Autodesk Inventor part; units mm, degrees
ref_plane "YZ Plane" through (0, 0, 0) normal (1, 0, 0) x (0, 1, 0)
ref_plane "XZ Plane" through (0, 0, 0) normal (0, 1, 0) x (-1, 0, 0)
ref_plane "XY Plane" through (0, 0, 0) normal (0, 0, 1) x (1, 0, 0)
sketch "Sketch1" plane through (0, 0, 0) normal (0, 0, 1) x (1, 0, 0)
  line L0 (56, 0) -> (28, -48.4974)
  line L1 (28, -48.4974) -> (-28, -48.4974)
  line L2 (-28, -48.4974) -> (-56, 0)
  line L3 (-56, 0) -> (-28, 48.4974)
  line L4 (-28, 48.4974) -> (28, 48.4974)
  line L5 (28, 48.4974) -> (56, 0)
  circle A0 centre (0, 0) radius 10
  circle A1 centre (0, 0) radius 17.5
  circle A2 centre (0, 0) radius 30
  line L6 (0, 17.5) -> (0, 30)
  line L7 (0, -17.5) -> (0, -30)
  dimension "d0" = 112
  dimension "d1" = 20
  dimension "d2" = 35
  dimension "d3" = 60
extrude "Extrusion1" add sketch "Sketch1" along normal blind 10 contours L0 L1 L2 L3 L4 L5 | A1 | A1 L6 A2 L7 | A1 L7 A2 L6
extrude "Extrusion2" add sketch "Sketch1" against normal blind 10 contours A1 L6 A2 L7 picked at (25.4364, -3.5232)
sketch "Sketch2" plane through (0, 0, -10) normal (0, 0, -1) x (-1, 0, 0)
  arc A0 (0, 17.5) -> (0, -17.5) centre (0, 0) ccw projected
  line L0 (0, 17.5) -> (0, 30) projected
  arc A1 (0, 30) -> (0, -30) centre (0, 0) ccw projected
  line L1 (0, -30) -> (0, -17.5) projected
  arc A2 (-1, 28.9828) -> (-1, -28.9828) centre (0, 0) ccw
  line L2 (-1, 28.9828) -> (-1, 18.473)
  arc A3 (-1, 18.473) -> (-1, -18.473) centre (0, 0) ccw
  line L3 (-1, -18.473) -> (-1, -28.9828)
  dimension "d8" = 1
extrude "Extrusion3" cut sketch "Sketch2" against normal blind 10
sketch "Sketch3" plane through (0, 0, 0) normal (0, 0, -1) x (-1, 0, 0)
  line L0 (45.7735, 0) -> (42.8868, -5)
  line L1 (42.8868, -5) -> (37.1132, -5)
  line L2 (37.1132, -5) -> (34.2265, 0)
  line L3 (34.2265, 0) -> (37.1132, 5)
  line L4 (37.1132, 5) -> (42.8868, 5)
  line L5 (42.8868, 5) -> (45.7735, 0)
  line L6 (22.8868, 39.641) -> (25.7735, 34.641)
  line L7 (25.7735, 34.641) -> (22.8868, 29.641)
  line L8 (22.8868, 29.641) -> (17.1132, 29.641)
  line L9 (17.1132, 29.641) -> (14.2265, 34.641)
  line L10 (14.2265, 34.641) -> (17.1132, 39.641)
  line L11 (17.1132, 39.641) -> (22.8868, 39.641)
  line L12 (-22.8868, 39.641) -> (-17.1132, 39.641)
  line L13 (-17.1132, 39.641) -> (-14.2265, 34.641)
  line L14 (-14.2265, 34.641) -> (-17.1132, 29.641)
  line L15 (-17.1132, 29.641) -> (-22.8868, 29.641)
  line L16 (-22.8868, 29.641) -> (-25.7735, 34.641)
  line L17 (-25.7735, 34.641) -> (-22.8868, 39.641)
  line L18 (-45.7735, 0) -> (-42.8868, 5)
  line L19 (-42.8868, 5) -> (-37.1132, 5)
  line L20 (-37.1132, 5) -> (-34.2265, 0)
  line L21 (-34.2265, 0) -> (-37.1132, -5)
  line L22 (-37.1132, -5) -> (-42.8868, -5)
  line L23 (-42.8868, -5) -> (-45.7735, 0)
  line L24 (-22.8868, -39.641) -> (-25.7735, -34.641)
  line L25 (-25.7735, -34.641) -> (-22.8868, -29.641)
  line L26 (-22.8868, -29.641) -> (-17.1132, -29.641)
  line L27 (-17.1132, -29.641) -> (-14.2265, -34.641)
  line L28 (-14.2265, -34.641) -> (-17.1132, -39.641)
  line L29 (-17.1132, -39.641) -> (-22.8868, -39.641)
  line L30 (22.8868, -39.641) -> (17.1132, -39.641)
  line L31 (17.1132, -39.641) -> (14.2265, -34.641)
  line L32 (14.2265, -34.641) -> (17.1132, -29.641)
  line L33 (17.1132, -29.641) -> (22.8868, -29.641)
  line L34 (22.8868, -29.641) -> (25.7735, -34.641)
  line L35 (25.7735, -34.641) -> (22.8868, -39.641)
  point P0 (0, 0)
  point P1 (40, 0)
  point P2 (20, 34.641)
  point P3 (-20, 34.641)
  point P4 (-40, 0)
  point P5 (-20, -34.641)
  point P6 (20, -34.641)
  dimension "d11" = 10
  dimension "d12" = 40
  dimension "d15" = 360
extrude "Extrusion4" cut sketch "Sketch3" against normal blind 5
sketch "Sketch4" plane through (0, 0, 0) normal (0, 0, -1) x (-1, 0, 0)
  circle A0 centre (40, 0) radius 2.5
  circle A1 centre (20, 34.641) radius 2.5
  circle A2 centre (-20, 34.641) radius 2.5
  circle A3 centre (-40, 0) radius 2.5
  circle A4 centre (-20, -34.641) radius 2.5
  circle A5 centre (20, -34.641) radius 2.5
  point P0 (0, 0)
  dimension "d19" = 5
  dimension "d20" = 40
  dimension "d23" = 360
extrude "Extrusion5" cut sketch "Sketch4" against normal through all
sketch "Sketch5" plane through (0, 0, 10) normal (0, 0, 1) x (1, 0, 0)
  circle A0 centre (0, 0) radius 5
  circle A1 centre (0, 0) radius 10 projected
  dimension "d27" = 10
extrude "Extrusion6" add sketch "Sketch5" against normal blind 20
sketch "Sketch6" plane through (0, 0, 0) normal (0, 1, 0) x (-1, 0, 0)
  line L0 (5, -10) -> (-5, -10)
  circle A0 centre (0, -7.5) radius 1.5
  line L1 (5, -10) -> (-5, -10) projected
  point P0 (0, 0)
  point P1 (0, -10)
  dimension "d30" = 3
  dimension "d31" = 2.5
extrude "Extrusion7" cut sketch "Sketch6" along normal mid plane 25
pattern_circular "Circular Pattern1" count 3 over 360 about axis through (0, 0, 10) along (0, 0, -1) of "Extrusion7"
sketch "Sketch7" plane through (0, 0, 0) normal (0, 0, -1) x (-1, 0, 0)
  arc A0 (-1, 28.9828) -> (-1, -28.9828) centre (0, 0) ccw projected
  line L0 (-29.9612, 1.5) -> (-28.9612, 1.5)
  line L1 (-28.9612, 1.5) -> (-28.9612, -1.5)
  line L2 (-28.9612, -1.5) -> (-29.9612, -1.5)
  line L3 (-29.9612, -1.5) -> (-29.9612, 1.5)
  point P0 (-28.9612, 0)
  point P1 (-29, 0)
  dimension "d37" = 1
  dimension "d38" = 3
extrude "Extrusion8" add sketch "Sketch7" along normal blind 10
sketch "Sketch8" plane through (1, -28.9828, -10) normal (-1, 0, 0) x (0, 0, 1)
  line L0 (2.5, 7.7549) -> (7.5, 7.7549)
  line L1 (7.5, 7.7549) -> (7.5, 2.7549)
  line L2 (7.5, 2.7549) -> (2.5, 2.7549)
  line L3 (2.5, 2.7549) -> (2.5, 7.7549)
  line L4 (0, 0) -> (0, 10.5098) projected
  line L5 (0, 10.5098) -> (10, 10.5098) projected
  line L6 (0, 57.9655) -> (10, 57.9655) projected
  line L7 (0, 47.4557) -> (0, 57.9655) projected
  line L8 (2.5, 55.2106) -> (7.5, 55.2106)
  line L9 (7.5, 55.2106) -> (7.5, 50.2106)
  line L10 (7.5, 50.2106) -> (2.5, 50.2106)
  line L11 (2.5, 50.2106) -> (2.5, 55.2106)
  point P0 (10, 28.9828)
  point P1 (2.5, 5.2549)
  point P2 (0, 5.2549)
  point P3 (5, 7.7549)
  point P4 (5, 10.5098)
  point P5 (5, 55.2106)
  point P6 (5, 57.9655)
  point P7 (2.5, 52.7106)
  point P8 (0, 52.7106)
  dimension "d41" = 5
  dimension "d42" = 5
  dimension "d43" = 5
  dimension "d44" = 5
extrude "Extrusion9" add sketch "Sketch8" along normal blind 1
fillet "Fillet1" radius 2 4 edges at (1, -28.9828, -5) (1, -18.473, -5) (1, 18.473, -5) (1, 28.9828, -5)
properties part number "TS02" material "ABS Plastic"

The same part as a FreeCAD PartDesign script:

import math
import FreeCAD as App
import Part
import Sketcher

V = App.Vector
Q = App.Units.Quantity


def edges_at(feature, points):
    """Names of the edges that pass closest to the given points."""
    edges = feature.Shape.Edges
    near = lambda p: min(range(len(edges)), key=lambda i: edges[i].distToShape(Part.Vertex(*p))[0])
    return sorted({f"Edge{near(p) + 1}" for p in points})


def add_polygon(sketch, points):
    """Adds a closed chain of lines whose ends are joined by coincident constraints."""
    first, n = sketch.GeometryCount, len(points)
    for a, b in zip(points, points[1:] + points[:1]):
        sketch.addGeometry(Part.LineSegment(App.Vector(*a, 0), App.Vector(*b, 0)), False)
    for i in range(n):
        sketch.addConstraint(Sketcher.Constraint("Coincident", first + i, 2, first + (i + 1) % n, 1))

doc = App.newDocument("Part")
body = doc.addObject("PartDesign::Body", "Body")

# Sketch on XY plane
sketch1 = body.newObject("Sketcher::SketchObject", "Sketch")
sketch1.AttachmentSupport = (doc.getObject("XY_Plane"), [""])
sketch1.MapMode = "FlatFace"
add_polygon(sketch1, [(28, -48), (56, 0), (28, 48), (-28, 48), (-56, 0), (-28, -48)])  # lines 0-5
sketch1.addGeometry(Part.Circle(V(0, 0, 0), V(0, 0, 1), 10), False)  # 6
sketch1.addConstraint([
    Sketcher.Constraint("Horizontal", 2),
    Sketcher.Constraint("Horizontal", 5),
    Sketcher.Constraint("Coincident", 6, 3, -1, 1),
    Sketcher.Constraint("Symmetric", 0, 2, 3, 2, -1, 1),
    Sketcher.Constraint("Symmetric", 1, 2, 4, 2, -1, 1),
    Sketcher.Constraint("PointOnObject", 0, 2, -1),
    Sketcher.Constraint("Parallel", 0, 3),
    Sketcher.Constraint("Vertical", 2, 2, 4, 2),
    Sketcher.Constraint("Diameter", 6, 20.0),
    Sketcher.Constraint("Angle", 0, Q("60 deg")),
    Sketcher.Constraint("DistanceX", 3, 2, 0, 2, 112.0),
    Sketcher.Constraint("DistanceX", 2, 2, 2, 1, 56.0),
])
pad1 = body.newObject("PartDesign::Pad", "Pad")
pad1.Profile = sketch1
pad1.Length = 10

# Sketch on XY plane
sketch2 = body.newObject("Sketcher::SketchObject", "Sketch001")
sketch2.AttachmentSupport = (doc.getObject("XY_Plane"), [""])
sketch2.MapMode = "FlatFace"
sketch2.addGeometry([
    Part.ArcOfCircle(Part.Circle(V(0, 0, 0), V(0, 0, 1), 18), math.radians(-90), math.radians(90)),
    Part.LineSegment(V(0, -18, 0), V(0, -30, 0)),
    Part.ArcOfCircle(Part.Circle(V(0, 0, 0), V(0, 0, 1), 30), math.radians(-90), math.radians(90)),
    Part.LineSegment(V(0, 30, 0), V(0, 18, 0)),
], False)
sketch2.addConstraint([
    Sketcher.Constraint("Coincident", 0, 1, 1, 1),
    Sketcher.Constraint("Coincident", 1, 2, 2, 1),
    Sketcher.Constraint("Coincident", 2, 2, 3, 1),
    Sketcher.Constraint("Coincident", 3, 2, 0, 2),
    Sketcher.Constraint("Vertical", 1),
    Sketcher.Constraint("Vertical", 3),
    Sketcher.Constraint("Coincident", 0, 3, -1, 1),
    Sketcher.Constraint("Coincident", 2, 3, -1, 1),
    Sketcher.Constraint("PointOnObject", 0, 1, -2),
    Sketcher.Constraint("PointOnObject", 2, 2, -2),
    Sketcher.Constraint("Radius", 2, 30.0),
    Sketcher.Constraint("Radius", 0, 17.5),
])
pad2 = body.newObject("PartDesign::Pad", "Pad001")
pad2.Profile = sketch2
pad2.Length = 10
pad2.Reversed = True

# Sketch on XY plane
sketch3 = body.newObject("Sketcher::SketchObject", "Sketch002")
sketch3.AttachmentSupport = (doc.getObject("XY_Plane"), [""])
sketch3.MapMode = "FlatFace"
sketch3.AttachmentOffset = App.Placement(V(0, 0, -10), App.Rotation())
sketch3.addGeometry([
    Part.ArcOfCircle(Part.Circle(V(0, 0, 0), V(0, 0, 1), 18), math.radians(-90), math.radians(90)),  # 0
    Part.LineSegment(V(0, 18, 0), V(0, 30, 0)),  # 1
    Part.ArcOfCircle(Part.Circle(V(0, 0, 0), V(0, 0, 1), 30), math.radians(-90), math.radians(90)),  # 2
    Part.LineSegment(V(0, -30, 0), V(0, -18, 0)),  # 3
    Part.ArcOfCircle(Part.Circle(V(0, 0, 0), V(0, 0, 1), 29), math.radians(-88), math.radians(88)),  # 4
    Part.LineSegment(V(1, 29, 0), V(1, 18, 0)),  # 5
    Part.ArcOfCircle(Part.Circle(V(0, 0, 0), V(0, 0, 1), 19), math.radians(-87), math.radians(87)),  # 6
    Part.LineSegment(V(1, -18, 0), V(1, -29, 0)),  # 7
], False)
sketch3.addConstraint([
    Sketcher.Constraint("Coincident", 0, 2, 1, 1),
    Sketcher.Constraint("Coincident", 1, 2, 2, 2),
    Sketcher.Constraint("Coincident", 2, 1, 3, 1),
    Sketcher.Constraint("Coincident", 3, 2, 0, 1),
    Sketcher.Constraint("Coincident", 4, 2, 5, 1),
    Sketcher.Constraint("Coincident", 5, 2, 6, 2),
    Sketcher.Constraint("Coincident", 6, 1, 7, 1),
    Sketcher.Constraint("Coincident", 7, 2, 4, 1),
    Sketcher.Constraint("Vertical", 1),
    Sketcher.Constraint("Vertical", 3),
    Sketcher.Constraint("Vertical", 5),
    Sketcher.Constraint("Vertical", 7),
    Sketcher.Constraint("Coincident", 0, 3, -1, 1),
    Sketcher.Constraint("Coincident", 2, 3, -1, 1),
    Sketcher.Constraint("Coincident", 4, 3, -1, 1),
    Sketcher.Constraint("Coincident", 6, 3, -1, 1),
    Sketcher.Constraint("PointOnObject", 0, 2, -2),
    Sketcher.Constraint("PointOnObject", 2, 1, -2),
    Sketcher.Constraint("Vertical", 5, 2, 6, 1),
    Sketcher.Constraint("DistanceX", -1, 1, 4, 2, 1.0),
    Sketcher.Constraint("Radius", 2, 30.0),
    Sketcher.Constraint("Radius", 4, 29.0),
    Sketcher.Constraint("Radius", 0, 17.5),
    Sketcher.Constraint("Radius", 6, 18.5),
])
pocket1 = body.newObject("PartDesign::Pocket", "Pocket")
pocket1.Profile = sketch3
pocket1.Length = 10
pocket1.Reversed = True

# Sketch on XY plane
sketch4 = body.newObject("Sketcher::SketchObject", "Sketch003")
sketch4.AttachmentSupport = (doc.getObject("XY_Plane"), [""])
sketch4.MapMode = "FlatFace"
add_polygon(sketch4, [(-43, -5), (-46, 0), (-43, 5), (-37, 5), (-34, 0), (-37, -5)])  # lines 0-5
add_polygon(sketch4, [(-26, 35), (-23, 40), (-17, 40), (-14, 35), (-17, 30), (-23, 30)])  # lines 6-11
add_polygon(sketch4, [(17, 40), (23, 40), (26, 35), (23, 30), (17, 30), (14, 35)])  # lines 12-17
add_polygon(sketch4, [(43, 5), (46, 0), (43, -5), (37, -5), (34, 0), (37, 5)])  # lines 18-23
add_polygon(sketch4, [(26, -35), (23, -40), (17, -40), (14, -35), (17, -30), (23, -30)])  # lines 24-29
add_polygon(sketch4, [(-17, -40), (-23, -40), (-26, -35), (-23, -30), (-17, -30), (-14, -35)])  # lines 30-35
sketch4.addConstraint([
    Sketcher.Constraint("Horizontal", 2),
    Sketcher.Constraint("Horizontal", 5),
    Sketcher.Constraint("Horizontal", 7),
    Sketcher.Constraint("Horizontal", 10),
    Sketcher.Constraint("Horizontal", 12),
    Sketcher.Constraint("Horizontal", 15),
    Sketcher.Constraint("Horizontal", 20),
    Sketcher.Constraint("Horizontal", 23),
    Sketcher.Constraint("Horizontal", 25),
    Sketcher.Constraint("Horizontal", 28),
    Sketcher.Constraint("Horizontal", 30),
    Sketcher.Constraint("Horizontal", 33),
    Sketcher.Constraint("Symmetric", 0, 2, 18, 2, -1, 1),
    Sketcher.Constraint("Symmetric", 1, 2, 19, 2, -1, 1),
    Sketcher.Constraint("Symmetric", 3, 2, 21, 2, -1, 1),
    Sketcher.Constraint("Symmetric", 4, 2, 22, 2, -1, 1),
    Sketcher.Constraint("Symmetric", 6, 2, 24, 2, -1, 1),
    Sketcher.Constraint("Symmetric", 8, 2, 26, 2, -1, 1),
    Sketcher.Constraint("Symmetric", 9, 2, 27, 2, -1, 1),
    Sketcher.Constraint("Symmetric", 11, 2, 29, 2, -1, 1),
    Sketcher.Constraint("Symmetric", 12, 2, 30, 2, -1, 1),
    Sketcher.Constraint("Symmetric", 13, 2, 31, 2, -1, 1),
    Sketcher.Constraint("Symmetric", 14, 2, 32, 2, -1, 1),
    Sketcher.Constraint("Symmetric", 16, 2, 34, 2, -1, 1),
    Sketcher.Constraint("Symmetric", 6, 2, 12, 2, -2),
    Sketcher.Constraint("Symmetric", 11, 2, 13, 2, -2),
    Sketcher.Constraint("Symmetric", 10, 2, 14, 2, -2),
    Sketcher.Constraint("Symmetric", 8, 2, 16, 2, -2),
    Sketcher.Constraint("Symmetric", 5, 2, 19, 2, -2),
    Sketcher.Constraint("PointOnObject", 0, 2, -1),
    Sketcher.Constraint("PointOnObject", 3, 2, -1),
    Sketcher.Constraint("Parallel", 0, 3),
    Sketcher.Constraint("Parallel", 1, 4),
    Sketcher.Constraint("Parallel", 4, 6),
    Sketcher.Constraint("Parallel", 3, 8),
    Sketcher.Constraint("Parallel", 6, 9),
    Sketcher.Constraint("Parallel", 8, 11),
    Sketcher.Constraint("Parallel", 13, 16),
    Sketcher.Constraint("Parallel", 14, 17),
    Sketcher.Constraint("Parallel", 16, 18),
    Sketcher.Constraint("Parallel", 18, 21),
    Sketcher.Constraint("Parallel", 21, 26),
    Sketcher.Constraint("Parallel", 26, 29),
    Sketcher.Constraint("Parallel", 31, 34),
    Sketcher.Constraint("Parallel", 32, 35),
    Sketcher.Constraint("Horizontal", 8, 2, 11, 2),
    Sketcher.Constraint("Vertical", 7, 2, 9, 2),
    Sketcher.Constraint("Equal", 5, 7),
    Sketcher.Constraint("Equal", 4, 6),
    Sketcher.Constraint("DistanceY", 4, 2, 2, 2, 10.0),
    Sketcher.Constraint("DistanceX", 7, 2, 12, 2, 40.0),
    Sketcher.Constraint("Angle", 0, Q("119.9996 deg")),
    Sketcher.Constraint("DistanceX", 1, 2, 6, 2, 20.0),
    Sketcher.Constraint("DistanceX", 2, 1, 2, 2, 5.7736),
    Sketcher.Constraint("DistanceY", -1, 1, 6, 2, 39.641),
])
pocket2 = body.newObject("PartDesign::Pocket", "Pocket001")
pocket2.Profile = sketch4
pocket2.Length = 5
pocket2.Reversed = True

# Sketch on XY plane
sketch5 = body.newObject("Sketcher::SketchObject", "Sketch004")
sketch5.AttachmentSupport = (doc.getObject("XY_Plane"), [""])
sketch5.MapMode = "FlatFace"
sketch5.addGeometry([
    Part.Circle(V(-40, 0, 0), V(0, 0, 1), 2.5),  # 0
    Part.Circle(V(-20, 34.6, 0), V(0, 0, 1), 2.5),  # 1
    Part.Circle(V(20, 34.6, 0), V(0, 0, 1), 2.5),  # 2
    Part.Circle(V(40, 0, 0), V(0, 0, 1), 2.5),  # 3
    Part.Circle(V(20, -34.6, 0), V(0, 0, 1), 2.5),  # 4
    Part.Circle(V(-20, -34.6, 0), V(0, 0, 1), 2.5),  # 5
], False)
sketch5.addConstraint([
    Sketcher.Constraint("Equal", 0, 1),
    Sketcher.Constraint("Equal", 1, 2),
    Sketcher.Constraint("Equal", 2, 3),
    Sketcher.Constraint("Equal", 3, 4),
    Sketcher.Constraint("Equal", 4, 5),
    Sketcher.Constraint("Symmetric", 0, 3, 3, 3, -1, 1),
    Sketcher.Constraint("Symmetric", 1, 3, 4, 3, -1, 1),
    Sketcher.Constraint("Symmetric", 2, 3, 5, 3, -1, 1),
    Sketcher.Constraint("Symmetric", 1, 3, 2, 3, -2),
    Sketcher.Constraint("PointOnObject", 0, 3, -1),
    Sketcher.Constraint("Diameter", 0, 5.0),
    Sketcher.Constraint("DistanceX", 0, 3, -1, 1, 40.0),
    Sketcher.Constraint("DistanceX", 1, 3, 2, 3, 40.0),
    Sketcher.Constraint("DistanceY", -1, 1, 1, 3, 34.641),
])
pocket3 = body.newObject("PartDesign::Pocket", "Pocket002")
pocket3.Profile = sketch5
pocket3.Type = "ThroughAll"
pocket3.Reversed = True

# Sketch on XY plane
sketch6 = body.newObject("Sketcher::SketchObject", "Sketch005")
sketch6.AttachmentSupport = (doc.getObject("XY_Plane"), [""])
sketch6.MapMode = "FlatFace"
sketch6.AttachmentOffset = App.Placement(V(0, 0, 10), App.Rotation())
sketch6.addGeometry([
    Part.Circle(V(0, 0, 0), V(0, 0, 1), 10),
    Part.Circle(V(0, 0, 0), V(0, 0, 1), 5),
], False)
sketch6.addConstraint([
    Sketcher.Constraint("Coincident", 0, 3, -1, 1),
    Sketcher.Constraint("Coincident", 1, 3, -1, 1),
    Sketcher.Constraint("Diameter", 0, 20.0),
    Sketcher.Constraint("Diameter", 1, 10.0),
])
pad3 = body.newObject("PartDesign::Pad", "Pad002")
pad3.Profile = sketch6
pad3.Length = 20
pad3.Reversed = True

# Sketch on XZ plane
sketch7 = body.newObject("Sketcher::SketchObject", "Sketch006")
sketch7.AttachmentSupport = (doc.getObject("XZ_Plane"), [""])
sketch7.MapMode = "FlatFace"
sketch7.addGeometry(Part.Circle(V(0, -7.5, 0), V(0, 0, 1), 1.5), False)
sketch7.addConstraint([
    Sketcher.Constraint("PointOnObject", 0, 3, -2),
    Sketcher.Constraint("Diameter", 0, 3.0),
    Sketcher.Constraint("DistanceY", 0, 3, -1, 1, 7.5),
])
pocket4 = body.newObject("PartDesign::Pocket", "Pocket003")
pocket4.Profile = sketch7
pocket4.Length = 25
pocket4.Midplane = True
doc.recompute()

polarpattern = body.newObject("PartDesign::PolarPattern", "PolarPattern")
polarpattern.Originals = [pocket4]
polarpattern.Axis = (doc.getObject("Z_Axis"), [""])
polarpattern.Angle = 360
polarpattern.Occurrences = 3
body.Tip = polarpattern

# Sketch on XY plane
sketch8 = body.newObject("Sketcher::SketchObject", "Sketch007")
sketch8.AttachmentSupport = (doc.getObject("XY_Plane"), [""])
sketch8.MapMode = "FlatFace"
add_polygon(sketch8, [(29, -1.5), (29, 1.5), (30, 1.5), (30, -1.5)])  # lines 0-3
sketch8.addConstraint([
    Sketcher.Constraint("Vertical", 0),
    Sketcher.Constraint("Horizontal", 1),
    Sketcher.Constraint("Vertical", 2),
    Sketcher.Constraint("Horizontal", 3),
    Sketcher.Constraint("DistanceX", 1, 1, 1, 2, 1.0),
    Sketcher.Constraint("DistanceY", 0, 1, 0, 2, 3.0),
    Sketcher.Constraint("DistanceY", -1, 1, 0, 2, 1.5),
    Sketcher.Constraint("DistanceX", -1, 1, 0, 2, 28.9612),
])
pad4 = body.newObject("PartDesign::Pad", "Pad003")
pad4.Profile = sketch8
pad4.Length = 10
pad4.Reversed = True

# Sketch on YZ plane
sketch9 = body.newObject("Sketcher::SketchObject", "Sketch008")
sketch9.AttachmentSupport = (doc.getObject("YZ_Plane"), [""])
sketch9.MapMode = "FlatFace"
sketch9.AttachmentOffset = App.Placement(V(0, 0, 1), App.Rotation())
add_polygon(sketch9, [(-21, -2), (-21, -8), (-26, -8), (-26, -2)])  # lines 0-3
add_polygon(sketch9, [(26, -2), (26, -8), (21, -8), (21, -2)])  # lines 4-7
sketch9.addConstraint([
    Sketcher.Constraint("Vertical", 0),
    Sketcher.Constraint("Horizontal", 1),
    Sketcher.Constraint("Vertical", 2),
    Sketcher.Constraint("Horizontal", 3),
    Sketcher.Constraint("Vertical", 4),
    Sketcher.Constraint("Horizontal", 5),
    Sketcher.Constraint("Vertical", 6),
    Sketcher.Constraint("Horizontal", 7),
    Sketcher.Constraint("Symmetric", 1, 2, 4, 2, -2),
    Sketcher.Constraint("Symmetric", 3, 2, 6, 2, -2),
    Sketcher.Constraint("Equal", 7, 0),
    Sketcher.Constraint("DistanceX", 1, 2, 1, 1, 5.0),
    Sketcher.Constraint("DistanceY", 0, 2, -1, 1, 7.5),
    Sketcher.Constraint("DistanceX", 0, 2, -1, 1, 21.228),
])
pad5 = body.newObject("PartDesign::Pad", "Pad004")
pad5.Profile = sketch9
pad5.Length = 1
pad5.Reversed = True
doc.recompute()

fillet = body.newObject("PartDesign::Fillet", "Fillet")
fillet.Base = (pad5, edges_at(pad5, [
    (1, -28.983, -5),
    (1, -18.473, -5),
    (1, 18.473, -5),
    (1, 28.983, -5),
]))
fillet.Radius = 2

doc.recompute()
